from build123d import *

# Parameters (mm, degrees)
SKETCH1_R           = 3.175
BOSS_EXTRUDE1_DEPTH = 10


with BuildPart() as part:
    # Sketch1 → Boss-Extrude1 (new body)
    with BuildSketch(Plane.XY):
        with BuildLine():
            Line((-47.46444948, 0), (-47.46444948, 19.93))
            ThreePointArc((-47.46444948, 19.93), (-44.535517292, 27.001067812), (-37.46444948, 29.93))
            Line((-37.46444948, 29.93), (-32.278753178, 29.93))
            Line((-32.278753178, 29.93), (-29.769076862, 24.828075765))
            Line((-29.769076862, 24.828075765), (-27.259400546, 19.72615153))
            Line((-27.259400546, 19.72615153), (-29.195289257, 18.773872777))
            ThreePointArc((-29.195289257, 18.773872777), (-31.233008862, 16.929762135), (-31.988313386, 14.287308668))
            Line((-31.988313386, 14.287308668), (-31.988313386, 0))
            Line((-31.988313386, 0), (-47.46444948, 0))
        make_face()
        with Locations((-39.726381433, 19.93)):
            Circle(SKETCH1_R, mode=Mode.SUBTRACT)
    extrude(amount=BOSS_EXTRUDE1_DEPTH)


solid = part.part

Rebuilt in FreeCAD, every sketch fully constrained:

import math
import FreeCAD as App
import Part
import Sketcher

V = App.Vector

doc = App.newDocument("Part")
body = doc.addObject("PartDesign::Body", "Body")

sketch1 = body.newObject("Sketcher::SketchObject", "Sketch")
sketch1.AttachmentSupport = (doc.getObject("XY_Plane"), [""])
sketch1.MapMode = "FlatFace"
sketch1.addGeometry(Part.LineSegment(V(-47.464449, 19.93, 0), V(-47.464449, 0, 0)), False)
sketch1.addGeometry(Part.LineSegment(V(-47.464449, 0, 0), V(-31.988313, 0, 0)), False)
sketch1.addGeometry(Part.LineSegment(V(-31.988313, 0, 0), V(-31.988313, 14.287309, 0)), False)
sketch1.addGeometry(Part.ArcOfCircle(Part.Circle(V(-26.988313, 14.287309, 0), V(0, 0, 1), 5), math.radians(116.192933), math.radians(180)), False)
sketch1.addGeometry(Part.LineSegment(V(-29.195289, 18.773873, 0), V(-27.259401, 19.726152, 0)), False)
sketch1.addGeometry(Part.LineSegment(V(-27.259401, 19.726152, 0), V(-32.278753, 29.93, 0)), False)
sketch1.addGeometry(Part.LineSegment(V(-32.278753, 29.93, 0), V(-37.464449, 29.93, 0)), False)
sketch1.addGeometry(Part.ArcOfCircle(Part.Circle(V(-37.464449, 19.93, 0), V(0, 0, 1), 10), math.radians(90), math.radians(180)), False)
sketch1.addGeometry(Part.Circle(V(-39.726381, 19.93, 0), V(0, 0, 1), 3.175), False)
sketch1.addConstraint(Sketcher.Constraint("Coincident", 0, 2, 1, 1))
sketch1.addConstraint(Sketcher.Constraint("Coincident", 1, 2, 2, 1))
sketch1.addConstraint(Sketcher.Constraint("Tangent", 2, 2, 3, 2))
sketch1.addConstraint(Sketcher.Constraint("Tangent", 3, 1, 4, 1))
sketch1.addConstraint(Sketcher.Constraint("Coincident", 4, 2, 5, 1))
sketch1.addConstraint(Sketcher.Constraint("Coincident", 5, 2, 6, 1))
sketch1.addConstraint(Sketcher.Constraint("Tangent", 6, 2, 7, 1))
sketch1.addConstraint(Sketcher.Constraint("Tangent", 7, 2, 0, 1))
sketch1.addConstraint(Sketcher.Constraint("Vertical", 0))
sketch1.addConstraint(Sketcher.Constraint("Horizontal", 1))
sketch1.addConstraint(Sketcher.Constraint("Vertical", 2))
sketch1.addConstraint(Sketcher.Constraint("Horizontal", 6))
sketch1.addConstraint(Sketcher.Constraint("PointOnObject", 0, 2, -1))
sketch1.addConstraint(Sketcher.Constraint("Perpendicular", 4, 5))
sketch1.addConstraint(Sketcher.Constraint("Horizontal", 7, 3, 8, 3))
sketch1.addConstraint(Sketcher.Constraint("Radius", 3, 5.0))
sketch1.addConstraint(Sketcher.Constraint("Radius", 7, 10.0))
sketch1.addConstraint(Sketcher.Constraint("Diameter", 8, 6.35))
sketch1.addConstraint(Sketcher.Constraint("DistanceY", 0, 2, 0, 1, 19.93))
sketch1.addConstraint(Sketcher.Constraint("DistanceY", 2, 1, 2, 2, 14.287309))
sketch1.addConstraint(Sketcher.Constraint("DistanceX", 4, 2, -1, 1, 27.259401))
sketch1.addConstraint(Sketcher.Constraint("Distance", 4, 2.157429))
sketch1.addConstraint(Sketcher.Constraint("DistanceX", 1, 1, 1, 2, 15.476136))
sketch1.addConstraint(Sketcher.Constraint("DistanceX", 6, 2, 6, 1, 5.185696))
sketch1.addConstraint(Sketcher.Constraint("DistanceX", 8, 3, -1, 1, 39.726381))
pad1 = body.newObject("PartDesign::Pad", "Pad")
pad1.Profile = sketch1
pad1.Length = 10

doc.recompute()
